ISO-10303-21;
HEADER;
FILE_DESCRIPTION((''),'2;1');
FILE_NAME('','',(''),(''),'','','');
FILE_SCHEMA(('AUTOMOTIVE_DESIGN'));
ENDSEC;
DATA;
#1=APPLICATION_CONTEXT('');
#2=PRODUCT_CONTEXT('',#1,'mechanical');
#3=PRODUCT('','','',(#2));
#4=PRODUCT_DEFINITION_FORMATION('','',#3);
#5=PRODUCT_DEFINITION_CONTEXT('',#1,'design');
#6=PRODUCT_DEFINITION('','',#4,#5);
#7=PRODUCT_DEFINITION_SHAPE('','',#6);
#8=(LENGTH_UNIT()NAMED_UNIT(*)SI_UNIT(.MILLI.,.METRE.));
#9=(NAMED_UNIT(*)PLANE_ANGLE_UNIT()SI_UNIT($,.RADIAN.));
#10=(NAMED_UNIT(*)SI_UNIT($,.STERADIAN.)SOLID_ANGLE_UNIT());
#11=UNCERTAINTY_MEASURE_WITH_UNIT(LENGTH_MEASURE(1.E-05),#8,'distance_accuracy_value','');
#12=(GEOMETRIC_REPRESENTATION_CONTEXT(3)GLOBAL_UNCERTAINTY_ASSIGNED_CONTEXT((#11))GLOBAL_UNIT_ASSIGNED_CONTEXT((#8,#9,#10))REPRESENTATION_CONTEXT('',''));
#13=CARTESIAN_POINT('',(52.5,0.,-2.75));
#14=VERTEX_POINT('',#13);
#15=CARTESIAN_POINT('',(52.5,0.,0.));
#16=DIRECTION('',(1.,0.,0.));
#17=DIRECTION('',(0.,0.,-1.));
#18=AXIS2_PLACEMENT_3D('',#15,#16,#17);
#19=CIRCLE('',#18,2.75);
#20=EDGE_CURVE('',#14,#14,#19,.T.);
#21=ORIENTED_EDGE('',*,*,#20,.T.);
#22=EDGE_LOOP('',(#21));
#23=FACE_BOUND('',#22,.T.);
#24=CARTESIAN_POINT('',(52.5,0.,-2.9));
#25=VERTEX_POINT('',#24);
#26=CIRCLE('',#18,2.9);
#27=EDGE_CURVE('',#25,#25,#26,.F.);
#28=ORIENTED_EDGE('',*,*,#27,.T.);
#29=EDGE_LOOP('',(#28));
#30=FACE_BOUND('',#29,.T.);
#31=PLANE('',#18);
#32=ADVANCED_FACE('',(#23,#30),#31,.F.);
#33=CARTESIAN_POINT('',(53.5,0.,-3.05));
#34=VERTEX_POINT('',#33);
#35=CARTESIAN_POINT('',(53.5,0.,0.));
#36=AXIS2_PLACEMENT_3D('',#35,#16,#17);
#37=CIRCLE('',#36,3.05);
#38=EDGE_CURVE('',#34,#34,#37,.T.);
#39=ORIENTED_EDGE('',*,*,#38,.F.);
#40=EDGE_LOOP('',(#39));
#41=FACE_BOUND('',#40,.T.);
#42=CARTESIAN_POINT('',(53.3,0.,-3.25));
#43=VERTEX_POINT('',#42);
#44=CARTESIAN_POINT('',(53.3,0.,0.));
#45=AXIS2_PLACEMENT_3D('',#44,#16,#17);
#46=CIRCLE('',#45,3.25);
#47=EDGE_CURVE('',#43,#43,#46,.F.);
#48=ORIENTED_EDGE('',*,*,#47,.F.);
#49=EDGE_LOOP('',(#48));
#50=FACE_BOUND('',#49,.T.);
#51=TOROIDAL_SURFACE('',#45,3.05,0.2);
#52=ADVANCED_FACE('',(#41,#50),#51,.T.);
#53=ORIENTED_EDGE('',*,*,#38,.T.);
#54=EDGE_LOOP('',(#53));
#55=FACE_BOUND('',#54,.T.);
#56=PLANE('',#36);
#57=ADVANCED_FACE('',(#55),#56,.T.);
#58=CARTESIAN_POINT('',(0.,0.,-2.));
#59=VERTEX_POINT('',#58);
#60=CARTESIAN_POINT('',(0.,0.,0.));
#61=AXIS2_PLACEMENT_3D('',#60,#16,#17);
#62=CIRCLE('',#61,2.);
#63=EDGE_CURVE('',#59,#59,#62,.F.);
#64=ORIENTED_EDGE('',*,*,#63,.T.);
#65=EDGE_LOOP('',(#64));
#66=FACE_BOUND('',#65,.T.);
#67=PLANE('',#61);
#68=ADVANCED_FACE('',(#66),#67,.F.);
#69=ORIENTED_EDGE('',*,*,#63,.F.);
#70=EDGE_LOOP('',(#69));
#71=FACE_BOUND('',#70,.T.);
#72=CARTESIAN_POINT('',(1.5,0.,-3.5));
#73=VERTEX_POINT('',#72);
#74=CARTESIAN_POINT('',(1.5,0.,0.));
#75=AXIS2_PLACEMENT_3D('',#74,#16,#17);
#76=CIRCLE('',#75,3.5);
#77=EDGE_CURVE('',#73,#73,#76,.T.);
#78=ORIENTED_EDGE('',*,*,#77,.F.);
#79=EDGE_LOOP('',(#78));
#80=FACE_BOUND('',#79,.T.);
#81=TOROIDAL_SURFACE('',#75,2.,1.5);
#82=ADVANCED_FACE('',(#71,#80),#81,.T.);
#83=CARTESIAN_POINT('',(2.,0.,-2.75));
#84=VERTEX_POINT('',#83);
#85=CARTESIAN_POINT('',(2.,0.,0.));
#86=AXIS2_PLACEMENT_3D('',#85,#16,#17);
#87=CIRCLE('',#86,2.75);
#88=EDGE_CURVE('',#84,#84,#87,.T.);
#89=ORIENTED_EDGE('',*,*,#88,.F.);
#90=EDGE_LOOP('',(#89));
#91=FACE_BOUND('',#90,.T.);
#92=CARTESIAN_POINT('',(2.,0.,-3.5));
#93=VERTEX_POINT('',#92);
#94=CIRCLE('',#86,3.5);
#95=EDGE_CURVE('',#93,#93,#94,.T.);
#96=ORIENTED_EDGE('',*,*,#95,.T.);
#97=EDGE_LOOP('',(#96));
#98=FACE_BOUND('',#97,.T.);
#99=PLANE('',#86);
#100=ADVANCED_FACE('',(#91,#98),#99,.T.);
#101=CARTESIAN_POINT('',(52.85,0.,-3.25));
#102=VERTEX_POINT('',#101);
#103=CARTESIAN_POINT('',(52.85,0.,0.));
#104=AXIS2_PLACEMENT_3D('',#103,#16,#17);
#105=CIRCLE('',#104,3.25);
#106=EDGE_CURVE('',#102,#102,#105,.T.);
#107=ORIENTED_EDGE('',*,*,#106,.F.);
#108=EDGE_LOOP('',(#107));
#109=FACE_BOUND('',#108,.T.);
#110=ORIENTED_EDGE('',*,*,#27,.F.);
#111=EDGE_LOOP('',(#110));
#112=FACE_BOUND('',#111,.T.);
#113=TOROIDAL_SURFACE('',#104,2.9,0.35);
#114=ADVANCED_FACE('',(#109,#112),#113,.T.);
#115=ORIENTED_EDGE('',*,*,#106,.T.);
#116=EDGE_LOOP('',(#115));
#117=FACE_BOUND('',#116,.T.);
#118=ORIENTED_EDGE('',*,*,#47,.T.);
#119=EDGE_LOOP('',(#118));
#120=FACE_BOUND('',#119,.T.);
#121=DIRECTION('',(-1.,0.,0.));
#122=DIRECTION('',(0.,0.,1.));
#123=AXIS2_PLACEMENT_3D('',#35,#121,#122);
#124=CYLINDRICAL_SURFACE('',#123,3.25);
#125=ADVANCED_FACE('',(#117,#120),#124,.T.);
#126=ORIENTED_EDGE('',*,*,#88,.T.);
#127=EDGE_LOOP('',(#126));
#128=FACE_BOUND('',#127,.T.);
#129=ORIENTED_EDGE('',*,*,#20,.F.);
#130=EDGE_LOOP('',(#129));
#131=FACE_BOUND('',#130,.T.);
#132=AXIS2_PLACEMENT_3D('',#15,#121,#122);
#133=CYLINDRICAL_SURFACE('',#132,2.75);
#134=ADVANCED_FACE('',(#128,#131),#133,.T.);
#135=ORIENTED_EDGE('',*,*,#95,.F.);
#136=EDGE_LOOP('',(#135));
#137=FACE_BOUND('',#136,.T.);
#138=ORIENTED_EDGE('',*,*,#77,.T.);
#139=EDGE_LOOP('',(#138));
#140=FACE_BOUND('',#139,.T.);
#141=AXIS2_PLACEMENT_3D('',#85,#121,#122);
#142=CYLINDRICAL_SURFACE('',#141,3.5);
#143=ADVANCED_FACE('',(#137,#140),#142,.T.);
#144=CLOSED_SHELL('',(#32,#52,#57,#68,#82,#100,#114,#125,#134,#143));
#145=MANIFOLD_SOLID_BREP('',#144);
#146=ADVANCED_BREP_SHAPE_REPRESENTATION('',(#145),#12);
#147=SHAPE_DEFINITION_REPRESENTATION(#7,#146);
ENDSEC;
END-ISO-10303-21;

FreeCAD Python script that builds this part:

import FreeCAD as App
import Part
import Sketcher
from FreeCAD import Vector


def edges_at(feature, points):
    """Names of the edges that pass closest to the given points."""
    edges = feature.Shape.Edges
    near = lambda p: min(range(len(edges)), key=lambda i: edges[i].distToShape(Part.Vertex(*p))[0])
    return sorted({f"Edge{near(p) + 1}" for p in points})

doc = App.newDocument("Part")
body = doc.addObject("PartDesign::Body", "Body")

sketch1 = doc.addObject("Sketcher::SketchObject", "Sketch")
body.addObject(sketch1)
sketch1.AttachmentSupport = (doc.YZ_Plane, [""])
sketch1.MapMode = "FlatFace"
sketch1.addGeometry(Part.Circle(Vector(0, 0, 0), Vector(0, 0, 1), 3.5), False)
sketch1.addConstraint([
    Sketcher.Constraint("Coincident", 0, 3, -1, 1),
    Sketcher.Constraint("Diameter", 0, 7.0),
])
pad1 = doc.addObject("PartDesign::Pad", "Pad")
body.addObject(pad1)
pad1.Profile = sketch1
pad1.Length = 2

sketch2 = doc.addObject("Sketcher::SketchObject", "Sketch001")
body.addObject(sketch2)
sketch2.AttachmentSupport = (doc.YZ_Plane, [""])
sketch2.MapMode = "FlatFace"
sketch2.AttachmentOffset = App.Placement(Vector(0, 0, 2), App.Rotation())
sketch2.addGeometry(Part.Circle(Vector(0, 0, 0), Vector(0, 0, 1), 2.8), False)
sketch2.addConstraint([
    Sketcher.Constraint("Coincident", 0, 3, -1, 1),
    Sketcher.Constraint("Diameter", 0, 5.5),
])
pad2 = doc.addObject("PartDesign::Pad", "Pad001")
body.addObject(pad2)
pad2.Profile = sketch2
pad2.Length = 50.5

sketch3 = doc.addObject("Sketcher::SketchObject", "Sketch002")
body.addObject(sketch3)
sketch3.AttachmentSupport = (doc.YZ_Plane, [""])
sketch3.MapMode = "FlatFace"
sketch3.AttachmentOffset = App.Placement(Vector(0, 0, 52.5), App.Rotation())
sketch3.addGeometry(Part.Circle(Vector(0, 0, 0), Vector(0, 0, 1), 3.2), False)
sketch3.addConstraint([
    Sketcher.Constraint("Coincident", 0, 3, -1, 1),
    Sketcher.Constraint("Diameter", 0, 6.5),
])
pad3 = doc.addObject("PartDesign::Pad", "Pad002")
body.addObject(pad3)
pad3.Profile = sketch3
pad3.Length = 1
doc.recompute()

fillet = doc.addObject("PartDesign::Fillet", "Fillet")
body.addObject(fillet)
fillet.Base = (pad3, edges_at(pad3, [(0, 0, 3.5)]))
fillet.Radius = 1.5
doc.recompute()

fillet2 = doc.addObject("PartDesign::Fillet", "Fillet001")
body.addObject(fillet2)
fillet2.Base = (fillet, edges_at(fillet, [(52.5, 0, 3.25)]))
fillet2.Radius = 0.35
doc.recompute()

fillet3 = doc.addObject("PartDesign::Fillet", "Fillet002")
body.addObject(fillet3)
fillet3.Base = (fillet2, edges_at(fillet2, [(53.5, 0, 3.25)]))
fillet3.Radius = 0.2

doc.recompute()
